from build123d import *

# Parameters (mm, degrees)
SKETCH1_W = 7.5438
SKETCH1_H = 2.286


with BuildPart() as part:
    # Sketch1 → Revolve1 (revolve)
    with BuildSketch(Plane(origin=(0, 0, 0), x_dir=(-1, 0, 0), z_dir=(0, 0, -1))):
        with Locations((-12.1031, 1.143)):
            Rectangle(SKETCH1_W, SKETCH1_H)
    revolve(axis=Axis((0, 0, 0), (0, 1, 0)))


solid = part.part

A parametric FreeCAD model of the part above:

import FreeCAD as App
import Part
import Sketcher
from FreeCAD import Vector
Q = App.Units.Quantity

doc = App.newDocument("Part")
body = doc.addObject("PartDesign::Body", "Body")

# Sketch on XY plane
sketch1 = body.newObject("Sketcher::SketchObject", "Sketch")
sketch1.AttachmentSupport = (doc.getObject("XY_Plane"), [""])
sketch1.MapMode = "FlatFace"
sketch1.addGeometry(Part.LineSegment(Vector(15.9, 2.3, 0), Vector(15.9, 0, 0)), False)
sketch1.addGeometry(Part.LineSegment(Vector(15.9, 0, 0), Vector(8.3, 0, 0)), False)
sketch1.addGeometry(Part.LineSegment(Vector(8.3, 0, 0), Vector(8.3, 2.3, 0)), False)
sketch1.addGeometry(Part.LineSegment(Vector(8.3, 2.3, 0), Vector(15.9, 2.3, 0)), False)
sketch1.addConstraint(Sketcher.Constraint("Coincident", 0, 2, 1, 1))
sketch1.addConstraint(Sketcher.Constraint("Coincident", 1, 2, 2, 1))
sketch1.addConstraint(Sketcher.Constraint("Coincident", 2, 2, 3, 1))
sketch1.addConstraint(Sketcher.Constraint("Coincident", 3, 2, 0, 1))
sketch1.addConstraint(Sketcher.Constraint("Vertical", 0))
sketch1.addConstraint(Sketcher.Constraint("Horizontal", 1))
sketch1.addConstraint(Sketcher.Constraint("Vertical", 2))
sketch1.addConstraint(Sketcher.Constraint("Horizontal", 3))
sketch1.addConstraint(Sketcher.Constraint("PointOnObject", 0, 2, -1))
sketch1.addConstraint(Sketcher.Constraint("DistanceY", 0, 2, 0, 1, Q("0.09 in")))
sketch1.addConstraint(Sketcher.Constraint("DistanceX", 1, 2, 1, 1, Q("0.297 in")))
sketch1.addConstraint(Sketcher.Constraint("DistanceX", -1, 1, 0, 2, Q("0.625 in")))
revolution = body.newObject("PartDesign::Revolution", "Revolution")
revolution.Profile = sketch1
revolution.ReferenceAxis = (sketch1, ["V_Axis"])
revolution.Angle = 360

doc.recompute()
